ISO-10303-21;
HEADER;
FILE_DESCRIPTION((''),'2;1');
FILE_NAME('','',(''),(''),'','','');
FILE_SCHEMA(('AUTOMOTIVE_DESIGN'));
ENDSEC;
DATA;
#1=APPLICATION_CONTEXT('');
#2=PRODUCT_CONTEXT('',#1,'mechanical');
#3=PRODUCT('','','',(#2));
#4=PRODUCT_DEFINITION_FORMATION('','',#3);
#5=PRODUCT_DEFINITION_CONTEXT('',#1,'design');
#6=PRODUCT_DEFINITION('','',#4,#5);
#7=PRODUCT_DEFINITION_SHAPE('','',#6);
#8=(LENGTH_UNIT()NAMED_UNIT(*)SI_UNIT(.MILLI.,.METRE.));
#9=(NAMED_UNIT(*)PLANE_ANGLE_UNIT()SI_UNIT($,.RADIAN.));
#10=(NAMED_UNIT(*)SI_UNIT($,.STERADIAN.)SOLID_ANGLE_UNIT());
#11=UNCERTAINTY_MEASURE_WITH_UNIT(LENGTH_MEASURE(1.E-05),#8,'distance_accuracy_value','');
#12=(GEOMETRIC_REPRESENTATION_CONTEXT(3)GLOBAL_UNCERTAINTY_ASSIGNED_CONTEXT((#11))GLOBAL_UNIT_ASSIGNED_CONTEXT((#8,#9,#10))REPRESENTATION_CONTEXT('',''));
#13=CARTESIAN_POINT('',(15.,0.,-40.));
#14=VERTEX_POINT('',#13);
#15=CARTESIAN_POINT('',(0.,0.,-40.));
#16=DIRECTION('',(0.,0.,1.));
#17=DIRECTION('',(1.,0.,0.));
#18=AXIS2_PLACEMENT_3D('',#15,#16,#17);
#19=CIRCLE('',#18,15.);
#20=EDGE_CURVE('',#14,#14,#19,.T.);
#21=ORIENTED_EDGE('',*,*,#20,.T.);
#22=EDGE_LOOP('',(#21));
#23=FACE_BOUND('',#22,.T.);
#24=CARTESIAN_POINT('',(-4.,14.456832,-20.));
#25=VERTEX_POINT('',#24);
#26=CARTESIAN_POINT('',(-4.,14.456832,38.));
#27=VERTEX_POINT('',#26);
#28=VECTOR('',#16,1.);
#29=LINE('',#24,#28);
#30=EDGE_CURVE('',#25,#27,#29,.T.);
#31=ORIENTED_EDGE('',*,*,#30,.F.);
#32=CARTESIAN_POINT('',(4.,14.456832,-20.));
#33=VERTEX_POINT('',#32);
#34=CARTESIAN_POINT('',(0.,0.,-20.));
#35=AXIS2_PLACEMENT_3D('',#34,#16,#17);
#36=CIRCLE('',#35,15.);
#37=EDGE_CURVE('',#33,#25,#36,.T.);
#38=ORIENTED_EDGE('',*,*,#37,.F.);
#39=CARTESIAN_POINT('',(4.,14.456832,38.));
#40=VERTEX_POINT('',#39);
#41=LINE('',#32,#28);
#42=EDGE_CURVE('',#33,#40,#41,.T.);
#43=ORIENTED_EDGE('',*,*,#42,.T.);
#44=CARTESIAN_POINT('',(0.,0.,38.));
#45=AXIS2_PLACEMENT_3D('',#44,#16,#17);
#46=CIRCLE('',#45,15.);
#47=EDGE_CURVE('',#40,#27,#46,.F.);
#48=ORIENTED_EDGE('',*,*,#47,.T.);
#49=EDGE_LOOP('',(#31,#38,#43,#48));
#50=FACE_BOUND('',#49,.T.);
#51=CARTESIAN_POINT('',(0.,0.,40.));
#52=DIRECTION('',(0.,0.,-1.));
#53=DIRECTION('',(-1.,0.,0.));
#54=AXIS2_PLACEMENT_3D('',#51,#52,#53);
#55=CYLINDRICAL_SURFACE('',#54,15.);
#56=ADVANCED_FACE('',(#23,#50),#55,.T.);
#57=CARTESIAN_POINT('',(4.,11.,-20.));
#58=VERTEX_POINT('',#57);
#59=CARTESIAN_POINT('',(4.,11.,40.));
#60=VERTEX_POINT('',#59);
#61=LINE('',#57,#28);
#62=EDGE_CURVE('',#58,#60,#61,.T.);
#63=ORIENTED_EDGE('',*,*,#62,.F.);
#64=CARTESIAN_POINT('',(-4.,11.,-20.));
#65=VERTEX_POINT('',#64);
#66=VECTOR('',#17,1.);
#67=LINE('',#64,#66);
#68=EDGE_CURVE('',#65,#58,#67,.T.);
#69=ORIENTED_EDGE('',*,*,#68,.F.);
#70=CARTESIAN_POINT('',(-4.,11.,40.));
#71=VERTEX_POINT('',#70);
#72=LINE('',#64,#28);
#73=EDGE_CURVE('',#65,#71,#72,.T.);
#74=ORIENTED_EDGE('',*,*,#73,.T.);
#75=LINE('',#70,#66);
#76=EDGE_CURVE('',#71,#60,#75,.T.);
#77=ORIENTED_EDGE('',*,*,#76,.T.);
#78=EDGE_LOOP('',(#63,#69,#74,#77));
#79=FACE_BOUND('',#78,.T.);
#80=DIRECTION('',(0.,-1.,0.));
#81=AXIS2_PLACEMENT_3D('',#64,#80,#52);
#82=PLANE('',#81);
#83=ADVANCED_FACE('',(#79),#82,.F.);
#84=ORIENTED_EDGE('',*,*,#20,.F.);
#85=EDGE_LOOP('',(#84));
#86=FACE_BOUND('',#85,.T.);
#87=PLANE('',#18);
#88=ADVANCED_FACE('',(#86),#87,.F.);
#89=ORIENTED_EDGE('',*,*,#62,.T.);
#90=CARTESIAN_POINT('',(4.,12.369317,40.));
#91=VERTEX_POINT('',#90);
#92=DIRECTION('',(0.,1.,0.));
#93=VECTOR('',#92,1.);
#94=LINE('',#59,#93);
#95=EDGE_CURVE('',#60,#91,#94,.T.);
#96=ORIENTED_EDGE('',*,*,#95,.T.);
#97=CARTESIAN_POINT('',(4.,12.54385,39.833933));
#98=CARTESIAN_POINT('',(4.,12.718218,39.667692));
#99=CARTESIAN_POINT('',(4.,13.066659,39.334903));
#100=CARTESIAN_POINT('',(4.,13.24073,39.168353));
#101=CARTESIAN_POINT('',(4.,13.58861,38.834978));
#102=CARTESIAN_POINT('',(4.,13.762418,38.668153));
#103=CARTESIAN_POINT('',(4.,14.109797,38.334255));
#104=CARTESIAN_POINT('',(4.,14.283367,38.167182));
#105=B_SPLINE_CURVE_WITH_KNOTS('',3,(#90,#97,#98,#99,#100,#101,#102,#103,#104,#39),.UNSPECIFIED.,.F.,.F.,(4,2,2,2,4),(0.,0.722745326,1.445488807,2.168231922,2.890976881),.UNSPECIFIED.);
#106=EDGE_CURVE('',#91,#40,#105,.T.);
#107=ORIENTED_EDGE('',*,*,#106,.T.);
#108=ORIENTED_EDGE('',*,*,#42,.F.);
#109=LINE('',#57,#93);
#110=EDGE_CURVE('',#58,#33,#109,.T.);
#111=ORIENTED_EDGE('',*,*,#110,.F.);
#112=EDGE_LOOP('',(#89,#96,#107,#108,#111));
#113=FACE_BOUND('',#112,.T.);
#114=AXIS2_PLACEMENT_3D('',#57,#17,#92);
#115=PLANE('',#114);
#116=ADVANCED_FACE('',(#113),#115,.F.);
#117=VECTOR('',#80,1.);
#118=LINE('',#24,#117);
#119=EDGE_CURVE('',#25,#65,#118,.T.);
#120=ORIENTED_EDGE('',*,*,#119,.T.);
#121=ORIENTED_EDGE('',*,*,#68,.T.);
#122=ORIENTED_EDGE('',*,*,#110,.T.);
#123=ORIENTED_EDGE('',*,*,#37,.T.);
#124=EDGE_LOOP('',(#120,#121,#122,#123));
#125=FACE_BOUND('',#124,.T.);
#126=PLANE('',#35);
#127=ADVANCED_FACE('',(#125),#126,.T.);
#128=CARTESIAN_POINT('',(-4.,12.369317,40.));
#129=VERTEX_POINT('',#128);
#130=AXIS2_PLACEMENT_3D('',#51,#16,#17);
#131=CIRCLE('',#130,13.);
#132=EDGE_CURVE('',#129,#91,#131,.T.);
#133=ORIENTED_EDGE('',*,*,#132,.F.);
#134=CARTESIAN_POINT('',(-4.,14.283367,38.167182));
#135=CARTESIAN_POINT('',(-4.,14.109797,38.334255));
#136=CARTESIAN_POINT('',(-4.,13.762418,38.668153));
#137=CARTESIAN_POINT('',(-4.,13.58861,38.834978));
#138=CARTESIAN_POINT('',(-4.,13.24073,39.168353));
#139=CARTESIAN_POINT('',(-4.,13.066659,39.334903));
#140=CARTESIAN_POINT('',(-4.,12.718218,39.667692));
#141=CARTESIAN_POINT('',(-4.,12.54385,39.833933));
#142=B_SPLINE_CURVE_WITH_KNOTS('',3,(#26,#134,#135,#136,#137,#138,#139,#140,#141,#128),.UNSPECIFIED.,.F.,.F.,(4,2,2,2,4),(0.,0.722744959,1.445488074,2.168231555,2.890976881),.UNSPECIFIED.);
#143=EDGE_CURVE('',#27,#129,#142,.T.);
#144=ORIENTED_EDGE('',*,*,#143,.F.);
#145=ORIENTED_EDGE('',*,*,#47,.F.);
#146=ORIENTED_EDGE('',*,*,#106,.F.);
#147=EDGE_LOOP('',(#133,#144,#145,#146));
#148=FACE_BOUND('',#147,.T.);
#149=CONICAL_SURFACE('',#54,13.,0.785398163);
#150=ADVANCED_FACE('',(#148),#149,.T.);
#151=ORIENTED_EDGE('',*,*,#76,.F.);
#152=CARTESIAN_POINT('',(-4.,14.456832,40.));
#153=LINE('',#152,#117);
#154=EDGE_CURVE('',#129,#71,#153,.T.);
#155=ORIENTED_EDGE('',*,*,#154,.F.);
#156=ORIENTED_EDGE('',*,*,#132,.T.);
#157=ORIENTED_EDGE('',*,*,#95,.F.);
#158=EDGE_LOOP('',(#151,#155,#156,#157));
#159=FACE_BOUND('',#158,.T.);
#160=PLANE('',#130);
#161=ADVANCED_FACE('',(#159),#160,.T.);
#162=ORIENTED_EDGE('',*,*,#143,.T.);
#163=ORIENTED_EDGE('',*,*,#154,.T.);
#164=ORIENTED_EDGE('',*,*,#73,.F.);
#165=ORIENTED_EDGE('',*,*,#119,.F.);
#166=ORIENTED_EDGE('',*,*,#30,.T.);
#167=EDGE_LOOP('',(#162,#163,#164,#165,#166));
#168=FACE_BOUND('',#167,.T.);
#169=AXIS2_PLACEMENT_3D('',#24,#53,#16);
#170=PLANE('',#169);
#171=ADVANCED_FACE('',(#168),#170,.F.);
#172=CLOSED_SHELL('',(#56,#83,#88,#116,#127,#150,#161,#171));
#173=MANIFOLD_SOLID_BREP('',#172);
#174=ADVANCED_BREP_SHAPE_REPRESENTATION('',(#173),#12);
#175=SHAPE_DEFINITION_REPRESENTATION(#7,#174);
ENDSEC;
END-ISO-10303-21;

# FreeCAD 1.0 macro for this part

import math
import FreeCAD as App
import Part
import Sketcher

V = App.Vector
Q = App.Units.Quantity


def edges_at(feature, points):
    """Names of the edges that pass closest to the given points."""
    edges = feature.Shape.Edges
    near = lambda p: min(range(len(edges)), key=lambda i: edges[i].distToShape(Part.Vertex(*p))[0])
    return sorted({f"Edge{near(p) + 1}" for p in points})

doc = App.newDocument("Part")
body = doc.addObject("PartDesign::Body", "Body")

# Sketch on XY plane
sketch1 = body.newObject("Sketcher::SketchObject", "Sketch")
sketch1.AttachmentSupport = (doc.getObject("XY_Plane"), [""])
sketch1.MapMode = "FlatFace"
sketch1.addGeometry(Part.Circle(V(0, 0, 0), V(0, 0, 1), 15), False)
sketch1.addConstraint([
    Sketcher.Constraint("Coincident", 0, 3, -1, 1),
    Sketcher.Constraint("Diameter", 0, Q("30 mm")),
])
pad1 = body.newObject("PartDesign::Pad", "Pad")
pad1.Profile = sketch1
pad1.Length = 80
pad1.Midplane = True

# Sketch on XY plane
sketch2 = body.newObject("Sketcher::SketchObject", "Sketch001")
sketch2.AttachmentSupport = (doc.getObject("XY_Plane"), [""])
sketch2.MapMode = "FlatFace"
sketch2.AttachmentOffset = App.Placement(V(0, 0, 40), App.Rotation())
sketch2.addGeometry([
    Part.LineSegment(V(-4, 14.5, 0), V(-4, 11, 0)),
    Part.LineSegment(V(-4, 11, 0), V(4, 11, 0)),
    Part.LineSegment(V(4, 11, 0), V(4, 14.5, 0)),
    Part.ArcOfCircle(Part.Circle(V(0, 0, 0), V(0, 0, 1), 15), math.radians(75), math.radians(105)),
], False)
sketch2.addConstraint([
    Sketcher.Constraint("Coincident", 0, 2, 1, 1),
    Sketcher.Constraint("Coincident", 1, 2, 2, 1),
    Sketcher.Constraint("Coincident", 2, 2, 3, 1),
    Sketcher.Constraint("Coincident", 3, 2, 0, 1),
    Sketcher.Constraint("Vertical", 0),
    Sketcher.Constraint("Horizontal", 1),
    Sketcher.Constraint("Vertical", 2),
    Sketcher.Constraint("Coincident", 3, 3, -1, 1),
    Sketcher.Constraint("Horizontal", 2, 2, 3, 2),
    Sketcher.Constraint("Radius", 3, Q("15 mm")),
    Sketcher.Constraint("DistanceX", 1, 1, 1, 2, Q("8 mm")),
    Sketcher.Constraint("DistanceY", -1, 1, 0, 2, Q("11 mm")),
])
pocket1 = body.newObject("PartDesign::Pocket", "Pocket")
pocket1.Profile = sketch2
pocket1.Length = 60
doc.recompute()

chamfer = body.newObject("PartDesign::Chamfer", "Chamfer")
chamfer.Base = (pocket1, edges_at(pocket1, [(-9.083, -11.937, 40)]))
chamfer.Size = 2

doc.recompute()
